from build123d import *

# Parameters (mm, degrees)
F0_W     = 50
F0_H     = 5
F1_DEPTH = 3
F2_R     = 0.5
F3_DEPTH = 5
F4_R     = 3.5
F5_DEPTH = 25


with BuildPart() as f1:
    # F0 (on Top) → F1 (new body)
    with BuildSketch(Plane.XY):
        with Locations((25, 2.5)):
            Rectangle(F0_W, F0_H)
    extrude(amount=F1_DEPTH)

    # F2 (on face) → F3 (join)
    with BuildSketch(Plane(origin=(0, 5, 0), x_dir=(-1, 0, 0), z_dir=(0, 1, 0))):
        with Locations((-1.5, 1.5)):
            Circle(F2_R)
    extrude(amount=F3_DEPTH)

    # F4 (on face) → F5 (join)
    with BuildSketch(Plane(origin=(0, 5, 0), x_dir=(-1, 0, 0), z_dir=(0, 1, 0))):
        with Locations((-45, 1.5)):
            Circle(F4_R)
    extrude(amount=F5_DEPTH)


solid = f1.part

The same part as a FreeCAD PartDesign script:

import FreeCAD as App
import Part
import Sketcher

V = App.Vector


def add_polygon(sketch, points):
    """Adds a closed chain of lines whose ends are joined by coincident constraints."""
    first, n = sketch.GeometryCount, len(points)
    for a, b in zip(points, points[1:] + points[:1]):
        sketch.addGeometry(Part.LineSegment(App.Vector(*a, 0), App.Vector(*b, 0)), False)
    for i in range(n):
        sketch.addConstraint(Sketcher.Constraint("Coincident", first + i, 2, first + (i + 1) % n, 1))

doc = App.newDocument("Part")
body = doc.addObject("PartDesign::Body", "Body")

# Sketch on XY plane
sketch1 = body.newObject("Sketcher::SketchObject", "Sketch")
sketch1.AttachmentSupport = (doc.getObject("XY_Plane"), [""])
sketch1.MapMode = "FlatFace"
add_polygon(sketch1, [(0, 5), (0, 0), (50, 0), (50, 5)])  # lines 0-3
sketch1.addConstraint(Sketcher.Constraint("Vertical", 0))
sketch1.addConstraint(Sketcher.Constraint("Horizontal", 1))
sketch1.addConstraint(Sketcher.Constraint("Vertical", 2))
sketch1.addConstraint(Sketcher.Constraint("Horizontal", 3))
sketch1.addConstraint(Sketcher.Constraint("Coincident", 0, 2, -1, 1))
sketch1.addConstraint(Sketcher.Constraint("DistanceX", 1, 1, 1, 2, 50.0))
sketch1.addConstraint(Sketcher.Constraint("DistanceY", 0, 2, 0, 1, 5.0))
pad1 = body.newObject("PartDesign::Pad", "Pad")
pad1.Profile = sketch1
pad1.Length = 3

# Sketch on XZ plane
sketch2 = body.newObject("Sketcher::SketchObject", "Sketch001")
sketch2.AttachmentSupport = (doc.getObject("XZ_Plane"), [""])
sketch2.MapMode = "FlatFace"
sketch2.AttachmentOffset = App.Placement(V(0, 0, -5), App.Rotation())
sketch2.addGeometry(Part.Circle(V(1.5, 1.5, 0), V(0, 0, 1), 0.5), False)
sketch2.addConstraint(Sketcher.Constraint("Diameter", 0, 1.0))
sketch2.addConstraint(Sketcher.Constraint("DistanceX", -1, 1, 0, 3, 1.5))
sketch2.addConstraint(Sketcher.Constraint("DistanceY", -1, 1, 0, 3, 1.5))
pad2 = body.newObject("PartDesign::Pad", "Pad001")
pad2.Profile = sketch2
pad2.Length = 5
pad2.Reversed = True

# Sketch on XZ plane
sketch3 = body.newObject("Sketcher::SketchObject", "Sketch002")
sketch3.AttachmentSupport = (doc.getObject("XZ_Plane"), [""])
sketch3.MapMode = "FlatFace"
sketch3.AttachmentOffset = App.Placement(V(0, 0, -5), App.Rotation())
sketch3.addGeometry(Part.Circle(V(45, 1.5, 0), V(0, 0, 1), 3.5), False)
sketch3.addConstraint(Sketcher.Constraint("Diameter", 0, 7.0))
sketch3.addConstraint(Sketcher.Constraint("DistanceX", -1, 1, 0, 3, 45.0))
sketch3.addConstraint(Sketcher.Constraint("DistanceY", -1, 1, 0, 3, 1.5))
pad3 = body.newObject("PartDesign::Pad", "Pad002")
pad3.Profile = sketch3
pad3.Length = 25
pad3.Reversed = True

doc.recompute()
